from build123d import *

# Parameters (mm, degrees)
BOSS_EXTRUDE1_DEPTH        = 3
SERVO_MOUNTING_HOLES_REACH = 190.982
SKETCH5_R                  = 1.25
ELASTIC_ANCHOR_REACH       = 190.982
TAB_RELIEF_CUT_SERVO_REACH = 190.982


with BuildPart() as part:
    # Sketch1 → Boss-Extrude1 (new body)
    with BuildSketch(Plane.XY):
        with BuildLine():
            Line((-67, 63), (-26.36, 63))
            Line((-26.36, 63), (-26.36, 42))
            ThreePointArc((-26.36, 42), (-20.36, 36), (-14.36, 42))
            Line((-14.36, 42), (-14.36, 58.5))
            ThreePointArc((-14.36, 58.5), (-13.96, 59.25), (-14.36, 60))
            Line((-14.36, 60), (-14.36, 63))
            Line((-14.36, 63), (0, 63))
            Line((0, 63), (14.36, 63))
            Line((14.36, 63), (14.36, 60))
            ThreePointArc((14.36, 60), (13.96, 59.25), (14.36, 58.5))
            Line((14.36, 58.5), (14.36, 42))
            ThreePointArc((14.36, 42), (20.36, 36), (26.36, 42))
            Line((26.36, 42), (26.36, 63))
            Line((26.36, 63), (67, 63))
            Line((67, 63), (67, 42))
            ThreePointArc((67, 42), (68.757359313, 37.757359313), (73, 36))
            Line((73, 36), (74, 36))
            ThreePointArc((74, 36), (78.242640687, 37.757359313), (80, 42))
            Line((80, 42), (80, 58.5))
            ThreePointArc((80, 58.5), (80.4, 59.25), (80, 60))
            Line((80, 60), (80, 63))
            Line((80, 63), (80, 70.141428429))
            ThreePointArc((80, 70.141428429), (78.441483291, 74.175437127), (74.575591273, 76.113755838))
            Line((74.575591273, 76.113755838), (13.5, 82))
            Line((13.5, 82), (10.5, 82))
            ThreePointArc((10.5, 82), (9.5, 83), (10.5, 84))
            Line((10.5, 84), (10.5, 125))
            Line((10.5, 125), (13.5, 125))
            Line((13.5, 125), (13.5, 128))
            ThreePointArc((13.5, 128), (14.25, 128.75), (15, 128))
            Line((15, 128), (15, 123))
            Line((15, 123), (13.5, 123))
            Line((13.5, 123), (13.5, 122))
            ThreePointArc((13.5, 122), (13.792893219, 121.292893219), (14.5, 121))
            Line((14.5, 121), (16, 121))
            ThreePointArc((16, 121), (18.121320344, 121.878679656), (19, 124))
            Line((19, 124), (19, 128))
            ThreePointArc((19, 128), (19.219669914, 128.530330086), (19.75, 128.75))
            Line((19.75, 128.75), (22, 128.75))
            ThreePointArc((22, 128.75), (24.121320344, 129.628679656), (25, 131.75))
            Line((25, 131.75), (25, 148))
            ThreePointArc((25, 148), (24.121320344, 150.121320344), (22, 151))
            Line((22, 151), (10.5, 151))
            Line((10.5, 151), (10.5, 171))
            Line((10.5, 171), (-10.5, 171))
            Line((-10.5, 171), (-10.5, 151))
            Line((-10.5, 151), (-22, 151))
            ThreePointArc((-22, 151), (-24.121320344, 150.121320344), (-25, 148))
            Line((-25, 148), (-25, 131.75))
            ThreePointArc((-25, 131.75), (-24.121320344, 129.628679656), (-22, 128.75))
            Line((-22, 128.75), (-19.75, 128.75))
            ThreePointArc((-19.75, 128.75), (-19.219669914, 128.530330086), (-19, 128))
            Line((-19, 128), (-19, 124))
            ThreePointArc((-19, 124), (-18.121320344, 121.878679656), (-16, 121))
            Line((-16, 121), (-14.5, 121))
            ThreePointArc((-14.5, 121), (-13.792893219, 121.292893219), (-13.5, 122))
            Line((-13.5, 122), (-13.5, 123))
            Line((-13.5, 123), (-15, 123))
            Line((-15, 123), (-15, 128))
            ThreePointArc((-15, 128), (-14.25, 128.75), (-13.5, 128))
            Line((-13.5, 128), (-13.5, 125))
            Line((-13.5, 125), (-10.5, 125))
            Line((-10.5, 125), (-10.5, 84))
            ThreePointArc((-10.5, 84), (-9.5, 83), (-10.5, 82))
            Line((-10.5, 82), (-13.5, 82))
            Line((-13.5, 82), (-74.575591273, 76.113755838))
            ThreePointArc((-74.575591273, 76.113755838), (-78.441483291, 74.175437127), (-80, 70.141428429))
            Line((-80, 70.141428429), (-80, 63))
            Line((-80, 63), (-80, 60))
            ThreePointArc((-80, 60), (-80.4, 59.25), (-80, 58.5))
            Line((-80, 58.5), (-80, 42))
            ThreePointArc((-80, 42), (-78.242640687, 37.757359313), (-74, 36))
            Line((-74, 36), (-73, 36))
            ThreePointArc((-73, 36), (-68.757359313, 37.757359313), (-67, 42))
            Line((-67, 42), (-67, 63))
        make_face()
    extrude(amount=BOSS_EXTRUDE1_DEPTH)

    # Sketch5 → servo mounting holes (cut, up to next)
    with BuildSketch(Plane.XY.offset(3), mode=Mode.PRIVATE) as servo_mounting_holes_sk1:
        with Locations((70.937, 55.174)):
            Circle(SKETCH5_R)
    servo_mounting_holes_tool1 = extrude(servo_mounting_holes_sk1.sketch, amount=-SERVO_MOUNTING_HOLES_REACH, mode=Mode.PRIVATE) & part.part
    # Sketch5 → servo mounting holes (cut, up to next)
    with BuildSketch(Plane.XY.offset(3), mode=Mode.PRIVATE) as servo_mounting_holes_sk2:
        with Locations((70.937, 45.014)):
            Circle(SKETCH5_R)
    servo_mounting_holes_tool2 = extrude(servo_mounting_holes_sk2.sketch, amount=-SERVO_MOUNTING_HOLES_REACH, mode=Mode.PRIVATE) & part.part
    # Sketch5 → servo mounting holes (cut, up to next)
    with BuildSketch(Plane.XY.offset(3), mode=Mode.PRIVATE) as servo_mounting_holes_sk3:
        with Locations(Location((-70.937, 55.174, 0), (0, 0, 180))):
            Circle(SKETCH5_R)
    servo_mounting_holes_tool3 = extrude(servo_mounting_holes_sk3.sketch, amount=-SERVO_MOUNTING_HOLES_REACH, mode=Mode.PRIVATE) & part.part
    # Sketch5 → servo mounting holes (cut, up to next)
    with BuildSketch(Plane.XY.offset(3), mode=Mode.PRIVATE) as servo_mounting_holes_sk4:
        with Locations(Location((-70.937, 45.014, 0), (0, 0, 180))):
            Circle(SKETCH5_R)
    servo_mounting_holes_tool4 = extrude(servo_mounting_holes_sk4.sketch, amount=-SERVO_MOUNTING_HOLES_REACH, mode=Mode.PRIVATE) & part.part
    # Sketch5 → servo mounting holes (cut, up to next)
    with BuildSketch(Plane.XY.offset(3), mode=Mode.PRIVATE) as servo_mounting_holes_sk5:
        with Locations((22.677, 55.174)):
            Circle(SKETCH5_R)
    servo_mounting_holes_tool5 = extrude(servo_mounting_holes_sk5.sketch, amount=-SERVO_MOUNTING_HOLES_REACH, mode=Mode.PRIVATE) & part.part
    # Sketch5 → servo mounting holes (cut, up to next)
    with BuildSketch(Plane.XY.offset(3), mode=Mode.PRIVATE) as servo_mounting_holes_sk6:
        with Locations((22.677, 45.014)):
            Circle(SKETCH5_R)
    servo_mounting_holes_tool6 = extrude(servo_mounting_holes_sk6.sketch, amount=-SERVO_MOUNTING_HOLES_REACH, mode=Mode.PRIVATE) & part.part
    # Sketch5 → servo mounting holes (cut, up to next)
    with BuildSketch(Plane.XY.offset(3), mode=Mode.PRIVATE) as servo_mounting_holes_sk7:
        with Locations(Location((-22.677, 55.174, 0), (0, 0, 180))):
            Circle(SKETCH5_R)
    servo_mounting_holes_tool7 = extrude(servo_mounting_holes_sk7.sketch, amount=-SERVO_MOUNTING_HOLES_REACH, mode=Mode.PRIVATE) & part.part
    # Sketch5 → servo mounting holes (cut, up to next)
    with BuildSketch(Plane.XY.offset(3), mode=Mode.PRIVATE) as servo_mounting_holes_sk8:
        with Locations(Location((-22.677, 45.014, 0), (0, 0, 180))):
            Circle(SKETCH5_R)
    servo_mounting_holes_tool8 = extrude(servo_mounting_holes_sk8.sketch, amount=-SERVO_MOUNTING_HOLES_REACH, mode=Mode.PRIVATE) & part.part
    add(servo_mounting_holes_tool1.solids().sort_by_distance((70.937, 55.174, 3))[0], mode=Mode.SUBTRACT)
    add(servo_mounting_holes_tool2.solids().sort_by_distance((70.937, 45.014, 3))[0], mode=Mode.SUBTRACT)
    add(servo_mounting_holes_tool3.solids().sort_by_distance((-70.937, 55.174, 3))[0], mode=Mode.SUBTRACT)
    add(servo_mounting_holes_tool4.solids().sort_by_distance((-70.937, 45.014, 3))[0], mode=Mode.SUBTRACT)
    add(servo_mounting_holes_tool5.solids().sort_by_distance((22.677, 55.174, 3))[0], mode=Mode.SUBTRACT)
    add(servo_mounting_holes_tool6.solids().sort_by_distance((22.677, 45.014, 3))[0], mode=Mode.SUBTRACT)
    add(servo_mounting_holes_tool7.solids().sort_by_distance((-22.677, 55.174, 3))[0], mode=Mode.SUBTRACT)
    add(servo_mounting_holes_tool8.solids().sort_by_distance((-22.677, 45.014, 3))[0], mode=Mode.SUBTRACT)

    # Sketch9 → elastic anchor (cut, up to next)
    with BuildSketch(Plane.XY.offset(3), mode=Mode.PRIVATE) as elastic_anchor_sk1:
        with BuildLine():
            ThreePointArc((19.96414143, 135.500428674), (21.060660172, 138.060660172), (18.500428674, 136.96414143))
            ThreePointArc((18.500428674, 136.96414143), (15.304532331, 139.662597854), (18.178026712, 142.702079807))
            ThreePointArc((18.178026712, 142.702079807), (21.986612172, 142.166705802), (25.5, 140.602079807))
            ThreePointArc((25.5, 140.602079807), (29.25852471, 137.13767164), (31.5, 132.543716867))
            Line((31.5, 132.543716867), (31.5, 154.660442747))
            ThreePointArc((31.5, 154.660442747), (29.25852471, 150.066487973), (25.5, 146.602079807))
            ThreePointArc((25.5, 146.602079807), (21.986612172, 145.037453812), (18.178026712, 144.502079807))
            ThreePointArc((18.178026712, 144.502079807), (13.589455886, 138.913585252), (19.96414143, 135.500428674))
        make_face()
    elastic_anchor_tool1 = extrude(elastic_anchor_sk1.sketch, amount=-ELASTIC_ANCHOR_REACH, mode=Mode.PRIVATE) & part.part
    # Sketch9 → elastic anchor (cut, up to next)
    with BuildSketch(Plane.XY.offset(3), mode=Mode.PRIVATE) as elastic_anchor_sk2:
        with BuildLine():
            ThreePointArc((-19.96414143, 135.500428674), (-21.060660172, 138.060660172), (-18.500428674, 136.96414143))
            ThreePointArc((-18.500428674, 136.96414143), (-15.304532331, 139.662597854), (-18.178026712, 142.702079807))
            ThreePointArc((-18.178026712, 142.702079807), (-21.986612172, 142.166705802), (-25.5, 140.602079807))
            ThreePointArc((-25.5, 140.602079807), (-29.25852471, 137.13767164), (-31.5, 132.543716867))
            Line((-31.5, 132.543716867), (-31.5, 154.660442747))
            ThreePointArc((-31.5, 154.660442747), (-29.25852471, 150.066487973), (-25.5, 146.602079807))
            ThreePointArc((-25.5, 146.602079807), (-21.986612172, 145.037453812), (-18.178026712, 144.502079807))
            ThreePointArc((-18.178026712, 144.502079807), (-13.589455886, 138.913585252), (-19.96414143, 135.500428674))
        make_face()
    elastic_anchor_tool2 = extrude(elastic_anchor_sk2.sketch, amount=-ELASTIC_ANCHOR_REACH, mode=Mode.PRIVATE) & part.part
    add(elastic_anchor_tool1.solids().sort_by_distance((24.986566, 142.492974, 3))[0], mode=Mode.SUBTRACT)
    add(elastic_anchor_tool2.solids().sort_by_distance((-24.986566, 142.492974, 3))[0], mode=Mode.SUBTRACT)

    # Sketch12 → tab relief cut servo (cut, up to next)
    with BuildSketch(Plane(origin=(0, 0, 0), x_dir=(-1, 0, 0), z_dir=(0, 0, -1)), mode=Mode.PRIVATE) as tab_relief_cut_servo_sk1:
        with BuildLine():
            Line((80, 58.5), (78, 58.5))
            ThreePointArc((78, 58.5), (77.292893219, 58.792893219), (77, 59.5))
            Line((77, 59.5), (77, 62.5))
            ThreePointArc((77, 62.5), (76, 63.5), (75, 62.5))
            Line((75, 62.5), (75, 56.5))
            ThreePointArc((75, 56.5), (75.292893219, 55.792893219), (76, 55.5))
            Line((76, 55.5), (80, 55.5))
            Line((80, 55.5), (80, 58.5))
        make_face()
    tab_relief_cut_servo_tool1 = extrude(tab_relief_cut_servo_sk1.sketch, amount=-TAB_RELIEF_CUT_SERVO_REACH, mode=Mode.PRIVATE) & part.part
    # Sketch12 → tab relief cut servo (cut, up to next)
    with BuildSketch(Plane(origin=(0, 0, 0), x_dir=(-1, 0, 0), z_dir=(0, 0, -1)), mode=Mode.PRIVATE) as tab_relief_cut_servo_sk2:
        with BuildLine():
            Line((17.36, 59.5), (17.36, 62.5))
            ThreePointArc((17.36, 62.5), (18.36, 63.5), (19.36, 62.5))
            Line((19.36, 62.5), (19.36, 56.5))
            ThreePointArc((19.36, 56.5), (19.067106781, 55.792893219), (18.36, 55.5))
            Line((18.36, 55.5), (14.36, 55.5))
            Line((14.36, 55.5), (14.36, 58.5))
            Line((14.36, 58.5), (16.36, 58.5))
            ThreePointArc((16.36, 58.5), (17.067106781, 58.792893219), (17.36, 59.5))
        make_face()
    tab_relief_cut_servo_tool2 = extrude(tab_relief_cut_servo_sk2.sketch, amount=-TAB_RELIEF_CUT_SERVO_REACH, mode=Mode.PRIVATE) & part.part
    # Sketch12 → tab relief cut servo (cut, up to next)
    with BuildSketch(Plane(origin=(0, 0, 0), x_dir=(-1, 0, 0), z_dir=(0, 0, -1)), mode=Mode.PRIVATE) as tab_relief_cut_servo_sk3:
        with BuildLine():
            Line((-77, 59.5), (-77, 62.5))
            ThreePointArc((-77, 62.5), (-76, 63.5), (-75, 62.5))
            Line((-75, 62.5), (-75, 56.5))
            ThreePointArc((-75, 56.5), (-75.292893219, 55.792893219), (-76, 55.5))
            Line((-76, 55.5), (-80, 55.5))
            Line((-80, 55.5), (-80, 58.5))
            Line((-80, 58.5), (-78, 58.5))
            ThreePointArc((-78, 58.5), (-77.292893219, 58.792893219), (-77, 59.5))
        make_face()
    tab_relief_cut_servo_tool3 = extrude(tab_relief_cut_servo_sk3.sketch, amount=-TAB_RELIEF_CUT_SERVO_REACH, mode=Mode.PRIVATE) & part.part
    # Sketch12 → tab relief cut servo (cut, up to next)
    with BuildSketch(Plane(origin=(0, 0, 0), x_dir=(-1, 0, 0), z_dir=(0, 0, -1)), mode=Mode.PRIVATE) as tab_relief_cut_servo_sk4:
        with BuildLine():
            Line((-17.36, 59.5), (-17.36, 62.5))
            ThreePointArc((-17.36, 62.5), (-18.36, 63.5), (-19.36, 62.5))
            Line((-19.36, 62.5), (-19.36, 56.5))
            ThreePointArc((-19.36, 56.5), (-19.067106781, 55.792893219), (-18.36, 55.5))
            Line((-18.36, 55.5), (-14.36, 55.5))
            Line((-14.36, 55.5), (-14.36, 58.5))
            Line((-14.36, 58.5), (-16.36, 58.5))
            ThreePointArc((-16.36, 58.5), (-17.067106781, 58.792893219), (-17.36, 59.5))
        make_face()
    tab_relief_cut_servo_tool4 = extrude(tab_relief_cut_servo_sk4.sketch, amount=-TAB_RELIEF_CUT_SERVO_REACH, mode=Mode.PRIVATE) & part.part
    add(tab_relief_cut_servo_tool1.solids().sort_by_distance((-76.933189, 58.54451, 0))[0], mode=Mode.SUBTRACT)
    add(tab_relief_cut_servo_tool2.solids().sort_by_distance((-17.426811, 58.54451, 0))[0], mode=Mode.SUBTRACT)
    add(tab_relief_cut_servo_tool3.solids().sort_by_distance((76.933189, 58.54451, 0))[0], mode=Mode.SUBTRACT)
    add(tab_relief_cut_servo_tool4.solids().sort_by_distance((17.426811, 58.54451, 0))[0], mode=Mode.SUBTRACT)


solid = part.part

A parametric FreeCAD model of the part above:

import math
import FreeCAD as App
import Part
import Sketcher

V = App.Vector

doc = App.newDocument("Part")
body = doc.addObject("PartDesign::Body", "Body")

sketch1 = body.newObject("Sketcher::SketchObject", "Sketch")
sketch1.AttachmentSupport = (doc.getObject("XY_Plane"), [""])
sketch1.MapMode = "FlatFace"
sketch1.addGeometry(Part.LineSegment(V(-67, 63, 0), V(-26.4, 63, 0)), False)
sketch1.addGeometry(Part.LineSegment(V(-26.4, 63, 0), V(-26.4, 42, 0)), False)
sketch1.addGeometry(Part.ArcOfCircle(Part.Circle(V(-20.4, 42, 0), V(0, 0, 1), 6), math.radians(180), math.radians(360)), False)
sketch1.addGeometry(Part.LineSegment(V(-14.4, 42, 0), V(-14.4, 58.5, 0)), False)
sketch1.addGeometry(Part.ArcOfCircle(Part.Circle(V(-14.9, 59.2, 0), V(0, 0, 1), 0.9), math.radians(-56), math.radians(56)), False)
sketch1.addGeometry(Part.LineSegment(V(-14.4, 60, 0), V(-14.4, 63, 0)), False)
sketch1.addGeometry(Part.LineSegment(V(-14.4, 63, 0), V(14.4, 63, 0)), False)
sketch1.addGeometry(Part.LineSegment(V(14.4, 63, 0), V(14.4, 60, 0)), False)
sketch1.addGeometry(Part.ArcOfCircle(Part.Circle(V(14.9, 59.2, 0), V(0, 0, 1), 0.9), math.radians(124), math.radians(236)), False)
sketch1.addGeometry(Part.LineSegment(V(14.4, 58.5, 0), V(14.4, 42, 0)), False)
sketch1.addGeometry(Part.ArcOfCircle(Part.Circle(V(20.4, 42, 0), V(0, 0, 1), 6), math.radians(180), math.radians(360)), False)
sketch1.addGeometry(Part.LineSegment(V(26.4, 42, 0), V(26.4, 63, 0)), False)
sketch1.addGeometry(Part.LineSegment(V(26.4, 63, 0), V(67, 63, 0)), False)
sketch1.addGeometry(Part.LineSegment(V(67, 63, 0), V(67, 42, 0)), False)
sketch1.addGeometry(Part.ArcOfCircle(Part.Circle(V(73, 42, 0), V(0, 0, 1), 6), math.radians(180), math.radians(270)), False)
sketch1.addGeometry(Part.LineSegment(V(73, 36, 0), V(74, 36, 0)), False)
sketch1.addGeometry(Part.ArcOfCircle(Part.Circle(V(74, 42, 0), V(0, 0, 1), 6), math.radians(-90), math.radians(0)), False)
sketch1.addGeometry(Part.LineSegment(V(80, 42, 0), V(80, 58.5, 0)), False)
sketch1.addGeometry(Part.ArcOfCircle(Part.Circle(V(79.5, 59.2, 0), V(0, 0, 1), 0.9), math.radians(-56), math.radians(56)), False)
sketch1.addGeometry(Part.LineSegment(V(80, 60, 0), V(80, 70.1, 0)), False)
sketch1.addGeometry(Part.ArcOfCircle(Part.Circle(V(74, 70.1, 0), V(0, 0, 1), 6), math.radians(0), math.radians(84)), False)
sketch1.addGeometry(Part.LineSegment(V(74.6, 76.1, 0), V(13.5, 82, 0)), False)
sketch1.addGeometry(Part.LineSegment(V(13.5, 82, 0), V(10.5, 82, 0)), False)
sketch1.addGeometry(Part.ArcOfCircle(Part.Circle(V(10.5, 83, 0), V(0, 0, 1), 1), math.radians(90), math.radians(270)), False)
sketch1.addGeometry(Part.LineSegment(V(10.5, 84, 0), V(10.5, 125, 0)), False)
sketch1.addGeometry(Part.LineSegment(V(10.5, 125, 0), V(13.5, 125, 0)), False)
sketch1.addGeometry(Part.LineSegment(V(13.5, 125, 0), V(13.5, 128, 0)), False)
sketch1.addGeometry(Part.ArcOfCircle(Part.Circle(V(14.2, 128, 0), V(0, 0, 1), 0.8), math.radians(0), math.radians(180)), False)
sketch1.addGeometry(Part.LineSegment(V(15, 128, 0), V(15, 123, 0)), False)
sketch1.addGeometry(Part.LineSegment(V(15, 123, 0), V(13.5, 123, 0)), False)
sketch1.addGeometry(Part.LineSegment(V(13.5, 123, 0), V(13.5, 122, 0)), False)
sketch1.addGeometry(Part.ArcOfCircle(Part.Circle(V(14.5, 122, 0), V(0, 0, 1), 1), math.radians(-180), math.radians(-90)), False)
sketch1.addGeometry(Part.LineSegment(V(14.5, 121, 0), V(16, 121, 0)), False)
sketch1.addGeometry(Part.ArcOfCircle(Part.Circle(V(16, 124, 0), V(0, 0, 1), 3), math.radians(-90), math.radians(0)), False)
sketch1.addGeometry(Part.LineSegment(V(19, 124, 0), V(19, 128, 0)), False)
sketch1.addGeometry(Part.ArcOfCircle(Part.Circle(V(19.8, 128, 0), V(0, 0, 1), 0.8), math.radians(90), math.radians(180)), False)
sketch1.addGeometry(Part.LineSegment(V(19.8, 128.8, 0), V(22, 128.8, 0)), False)
sketch1.addGeometry(Part.ArcOfCircle(Part.Circle(V(22, 131.7, 0), V(0, 0, 1), 3), math.radians(-90), math.radians(0)), False)
sketch1.addGeometry(Part.LineSegment(V(25, 131.8, 0), V(25, 148, 0)), False)
sketch1.addGeometry(Part.ArcOfCircle(Part.Circle(V(22, 148, 0), V(0, 0, 1), 3), math.radians(0), math.radians(90)), False)
sketch1.addGeometry(Part.LineSegment(V(22, 151, 0), V(10.5, 151, 0)), False)
sketch1.addGeometry(Part.LineSegment(V(10.5, 151, 0), V(10.5, 171, 0)), False)
sketch1.addGeometry(Part.LineSegment(V(10.5, 171, 0), V(-10.5, 171, 0)), False)
sketch1.addGeometry(Part.LineSegment(V(-10.5, 171, 0), V(-10.5, 151, 0)), False)
sketch1.addGeometry(Part.LineSegment(V(-10.5, 151, 0), V(-22, 151, 0)), False)
sketch1.addGeometry(Part.ArcOfCircle(Part.Circle(V(-22, 148, 0), V(0, 0, 1), 3), math.radians(90), math.radians(180)), False)
sketch1.addGeometry(Part.LineSegment(V(-25, 148, 0), V(-25, 131.8, 0)), False)
sketch1.addGeometry(Part.ArcOfCircle(Part.Circle(V(-22, 131.7, 0), V(0, 0, 1), 3), math.radians(180), math.radians(270)), False)
sketch1.addGeometry(Part.LineSegment(V(-22, 128.8, 0), V(-19.8, 128.8, 0)), False)
sketch1.addGeometry(Part.ArcOfCircle(Part.Circle(V(-19.8, 128, 0), V(0, 0, 1), 0.8), math.radians(0), math.radians(90)), False)
sketch1.addGeometry(Part.LineSegment(V(-19, 128, 0), V(-19, 124, 0)), False)
sketch1.addGeometry(Part.ArcOfCircle(Part.Circle(V(-16, 124, 0), V(0, 0, 1), 3), math.radians(180), math.radians(270)), False)
sketch1.addGeometry(Part.LineSegment(V(-16, 121, 0), V(-14.5, 121, 0)), False)
sketch1.addGeometry(Part.ArcOfCircle(Part.Circle(V(-14.5, 122, 0), V(0, 0, 1), 1), math.radians(-90), math.radians(0)), False)
sketch1.addGeometry(Part.LineSegment(V(-13.5, 122, 0), V(-13.5, 123, 0)), False)
sketch1.addGeometry(Part.LineSegment(V(-13.5, 123, 0), V(-15, 123, 0)), False)
sketch1.addGeometry(Part.LineSegment(V(-15, 123, 0), V(-15, 128, 0)), False)
sketch1.addGeometry(Part.ArcOfCircle(Part.Circle(V(-14.2, 128, 0), V(0, 0, 1), 0.8), math.radians(0), math.radians(180)), False)
sketch1.addGeometry(Part.LineSegment(V(-13.5, 128, 0), V(-13.5, 125, 0)), False)
sketch1.addGeometry(Part.LineSegment(V(-13.5, 125, 0), V(-10.5, 125, 0)), False)
sketch1.addGeometry(Part.LineSegment(V(-10.5, 125, 0), V(-10.5, 84, 0)), False)
sketch1.addGeometry(Part.ArcOfCircle(Part.Circle(V(-10.5, 83, 0), V(0, 0, 1), 1), math.radians(-90), math.radians(90)), False)
sketch1.addGeometry(Part.LineSegment(V(-10.5, 82, 0), V(-13.5, 82, 0)), False)
sketch1.addGeometry(Part.LineSegment(V(-13.5, 82, 0), V(-74.6, 76.1, 0)), False)
sketch1.addGeometry(Part.ArcOfCircle(Part.Circle(V(-74, 70.1, 0), V(0, 0, 1), 6), math.radians(96), math.radians(180)), False)
sketch1.addGeometry(Part.LineSegment(V(-80, 70.1, 0), V(-80, 60, 0)), False)
sketch1.addGeometry(Part.ArcOfCircle(Part.Circle(V(-79.5, 59.2, 0), V(0, 0, 1), 0.9), math.radians(124), math.radians(236)), False)
sketch1.addGeometry(Part.LineSegment(V(-80, 58.5, 0), V(-80, 42, 0)), False)
sketch1.addGeometry(Part.ArcOfCircle(Part.Circle(V(-74, 42, 0), V(0, 0, 1), 6), math.radians(180), math.radians(270)), False)
sketch1.addGeometry(Part.LineSegment(V(-74, 36, 0), V(-73, 36, 0)), False)
sketch1.addGeometry(Part.ArcOfCircle(Part.Circle(V(-73, 42, 0), V(0, 0, 1), 6), math.radians(-90), math.radians(0)), False)
sketch1.addGeometry(Part.LineSegment(V(-67, 42, 0), V(-67, 63, 0)), False)
sketch1.addConstraint(Sketcher.Constraint("Coincident", 0, 2, 1, 1))
sketch1.addConstraint(Sketcher.Constraint("Tangent", 1, 2, 2, 1))
sketch1.addConstraint(Sketcher.Constraint("Tangent", 2, 2, 3, 1))
sketch1.addConstraint(Sketcher.Constraint("Coincident", 3, 2, 4, 1))
sketch1.addConstraint(Sketcher.Constraint("Coincident", 4, 2, 5, 1))
sketch1.addConstraint(Sketcher.Constraint("Coincident", 5, 2, 6, 1))
sketch1.addConstraint(Sketcher.Constraint("Coincident", 6, 2, 7, 1))
sketch1.addConstraint(Sketcher.Constraint("Coincident", 7, 2, 8, 1))
sketch1.addConstraint(Sketcher.Constraint("Coincident", 8, 2, 9, 1))
sketch1.addConstraint(Sketcher.Constraint("Tangent", 9, 2, 10, 1))
sketch1.addConstraint(Sketcher.Constraint("Tangent", 10, 2, 11, 1))
sketch1.addConstraint(Sketcher.Constraint("Coincident", 11, 2, 12, 1))
sketch1.addConstraint(Sketcher.Constraint("Coincident", 12, 2, 13, 1))
sketch1.addConstraint(Sketcher.Constraint("Tangent", 13, 2, 14, 1))
sketch1.addConstraint(Sketcher.Constraint("Tangent", 14, 2, 15, 1))
sketch1.addConstraint(Sketcher.Constraint("Tangent", 15, 2, 16, 1))
sketch1.addConstraint(Sketcher.Constraint("Tangent", 16, 2, 17, 1))
sketch1.addConstraint(Sketcher.Constraint("Coincident", 17, 2, 18, 1))
sketch1.addConstraint(Sketcher.Constraint("Coincident", 18, 2, 19, 1))
sketch1.addConstraint(Sketcher.Constraint("Tangent", 19, 2, 20, 1))
sketch1.addConstraint(Sketcher.Constraint("Tangent", 20, 2, 21, 1))
sketch1.addConstraint(Sketcher.Constraint("Coincident", 21, 2, 22, 1))
sketch1.addConstraint(Sketcher.Constraint("Tangent", 22, 2, 23, 2))
sketch1.addConstraint(Sketcher.Constraint("Coincident", 23, 1, 24, 1))
sketch1.addConstraint(Sketcher.Constraint("Coincident", 24, 2, 25, 1))
sketch1.addConstraint(Sketcher.Constraint("Coincident", 25, 2, 26, 1))
sketch1.addConstraint(Sketcher.Constraint("Tangent", 26, 2, 27, 2))
sketch1.addConstraint(Sketcher.Constraint("Tangent", 27, 1, 28, 1))
sketch1.addConstraint(Sketcher.Constraint("Coincident", 28, 2, 29, 1))
sketch1.addConstraint(Sketcher.Constraint("Coincident", 29, 2, 30, 1))
sketch1.addConstraint(Sketcher.Constraint("Tangent", 30, 2, 31, 1))
sketch1.addConstraint(Sketcher.Constraint("Tangent", 31, 2, 32, 1))
sketch1.addConstraint(Sketcher.Constraint("Tangent", 32, 2, 33, 1))
sketch1.addConstraint(Sketcher.Constraint("Tangent", 33, 2, 34, 1))
sketch1.addConstraint(Sketcher.Constraint("Tangent", 34, 2, 35, 2))
sketch1.addConstraint(Sketcher.Constraint("Tangent", 35, 1, 36, 1))
sketch1.addConstraint(Sketcher.Constraint("Tangent", 36, 2, 37, 1))
sketch1.addConstraint(Sketcher.Constraint("Tangent", 37, 2, 38, 1))
sketch1.addConstraint(Sketcher.Constraint("Tangent", 38, 2, 39, 1))
sketch1.addConstraint(Sketcher.Constraint("Tangent", 39, 2, 40, 1))
sketch1.addConstraint(Sketcher.Constraint("Coincident", 40, 2, 41, 1))
sketch1.addConstraint(Sketcher.Constraint("Coincident", 41, 2, 42, 1))
sketch1.addConstraint(Sketcher.Constraint("Coincident", 42, 2, 43, 1))
sketch1.addConstraint(Sketcher.Constraint("Coincident", 43, 2, 44, 1))
sketch1.addConstraint(Sketcher.Constraint("Tangent", 44, 2, 45, 1))
sketch1.addConstraint(Sketcher.Constraint("Tangent", 45, 2, 46, 1))
sketch1.addConstraint(Sketcher.Constraint("Tangent", 46, 2, 47, 1))
sketch1.addConstraint(Sketcher.Constraint("Tangent", 47, 2, 48, 1))
sketch1.addConstraint(Sketcher.Constraint("Tangent", 48, 2, 49, 2))
sketch1.addConstraint(Sketcher.Constraint("Tangent", 49, 1, 50, 1))
sketch1.addConstraint(Sketcher.Constraint("Tangent", 50, 2, 51, 1))
sketch1.addConstraint(Sketcher.Constraint("Tangent", 51, 2, 52, 1))
sketch1.addConstraint(Sketcher.Constraint("Tangent", 52, 2, 53, 1))
sketch1.addConstraint(Sketcher.Constraint("Tangent", 53, 2, 54, 1))
sketch1.addConstraint(Sketcher.Constraint("Coincident", 54, 2, 55, 1))
sketch1.addConstraint(Sketcher.Constraint("Coincident", 55, 2, 56, 1))
sketch1.addConstraint(Sketcher.Constraint("Tangent", 56, 2, 57, 2))
sketch1.addConstraint(Sketcher.Constraint("Tangent", 57, 1, 58, 1))
sketch1.addConstraint(Sketcher.Constraint("Coincident", 58, 2, 59, 1))
sketch1.addConstraint(Sketcher.Constraint("Coincident", 59, 2, 60, 1))
sketch1.addConstraint(Sketcher.Constraint("Coincident", 60, 2, 61, 2))
sketch1.addConstraint(Sketcher.Constraint("Tangent", 61, 1, 62, 1))
sketch1.addConstraint(Sketcher.Constraint("Coincident", 62, 2, 63, 1))
sketch1.addConstraint(Sketcher.Constraint("Tangent", 63, 2, 64, 1))
sketch1.addConstraint(Sketcher.Constraint("Tangent", 64, 2, 65, 1))
sketch1.addConstraint(Sketcher.Constraint("Coincident", 65, 2, 66, 1))
sketch1.addConstraint(Sketcher.Constraint("Coincident", 66, 2, 67, 1))
sketch1.addConstraint(Sketcher.Constraint("Tangent", 67, 2, 68, 1))
sketch1.addConstraint(Sketcher.Constraint("Tangent", 68, 2, 69, 1))
sketch1.addConstraint(Sketcher.Constraint("Tangent", 69, 2, 70, 1))
sketch1.addConstraint(Sketcher.Constraint("Tangent", 70, 2, 71, 1))
sketch1.addConstraint(Sketcher.Constraint("Coincident", 71, 2, 0, 1))
sketch1.addConstraint(Sketcher.Constraint("Horizontal", 0))
sketch1.addConstraint(Sketcher.Constraint("Vertical", 1))
sketch1.addConstraint(Sketcher.Constraint("Vertical", 3))
sketch1.addConstraint(Sketcher.Constraint("Vertical", 5))
sketch1.addConstraint(Sketcher.Constraint("Horizontal", 6))
sketch1.addConstraint(Sketcher.Constraint("Vertical", 7))
sketch1.addConstraint(Sketcher.Constraint("Vertical", 9))
sketch1.addConstraint(Sketcher.Constraint("Vertical", 11))
sketch1.addConstraint(Sketcher.Constraint("Horizontal", 12))
sketch1.addConstraint(Sketcher.Constraint("Vertical", 13))
sketch1.addConstraint(Sketcher.Constraint("Horizontal", 15))
sketch1.addConstraint(Sketcher.Constraint("Vertical", 17))
sketch1.addConstraint(Sketcher.Constraint("Vertical", 19))
sketch1.addConstraint(Sketcher.Constraint("Horizontal", 22))
sketch1.addConstraint(Sketcher.Constraint("Vertical", 24))
sketch1.addConstraint(Sketcher.Constraint("Horizontal", 25))
sketch1.addConstraint(Sketcher.Constraint("Vertical", 26))
sketch1.addConstraint(Sketcher.Constraint("Vertical", 28))
sketch1.addConstraint(Sketcher.Constraint("Horizontal", 29))
sketch1.addConstraint(Sketcher.Constraint("Vertical", 30))
sketch1.addConstraint(Sketcher.Constraint("Horizontal", 32))
sketch1.addConstraint(Sketcher.Constraint("Vertical", 34))
sketch1.addConstraint(Sketcher.Constraint("Horizontal", 36))
sketch1.addConstraint(Sketcher.Constraint("Vertical", 38))
sketch1.addConstraint(Sketcher.Constraint("Horizontal", 40))
sketch1.addConstraint(Sketcher.Constraint("Vertical", 41))
sketch1.addConstraint(Sketcher.Constraint("Horizontal", 42))
sketch1.addConstraint(Sketcher.Constraint("Vertical", 43))
sketch1.addConstraint(Sketcher.Constraint("Horizontal", 44))
sketch1.addConstraint(Sketcher.Constraint("Vertical", 46))
sketch1.addConstraint(Sketcher.Constraint("Horizontal", 48))
sketch1.addConstraint(Sketcher.Constraint("Vertical", 50))
sketch1.addConstraint(Sketcher.Constraint("Horizontal", 52))
sketch1.addConstraint(Sketcher.Constraint("Vertical", 54))
sketch1.addConstraint(Sketcher.Constraint("Horizontal", 55))
sketch1.addConstraint(Sketcher.Constraint("Vertical", 56))
sketch1.addConstraint(Sketcher.Constraint("Vertical", 58))
sketch1.addConstraint(Sketcher.Constraint("Horizontal", 59))
sketch1.addConstraint(Sketcher.Constraint("Vertical", 60))
sketch1.addConstraint(Sketcher.Constraint("Horizontal", 62))
sketch1.addConstraint(Sketcher.Constraint("Vertical", 65))
sketch1.addConstraint(Sketcher.Constraint("Vertical", 67))
sketch1.addConstraint(Sketcher.Constraint("Horizontal", 69))
sketch1.addConstraint(Sketcher.Constraint("Vertical", 71))
sketch1.addConstraint(Sketcher.Constraint("Equal", 4, 8))
sketch1.addConstraint(Sketcher.Constraint("Equal", 2, 10))
sketch1.addConstraint(Sketcher.Constraint("Equal", 10, 14))
sketch1.addConstraint(Sketcher.Constraint("Equal", 14, 16))
sketch1.addConstraint(Sketcher.Constraint("Equal", 8, 18))
sketch1.addConstraint(Sketcher.Constraint("Equal", 16, 20))
sketch1.addConstraint(Sketcher.Constraint("Equal", 23, 31))
sketch1.addConstraint(Sketcher.Constraint("Equal", 27, 35))
sketch1.addConstraint(Sketcher.Constraint("Equal", 33, 37))
sketch1.addConstraint(Sketcher.Constraint("Equal", 37, 39))
sketch1.addConstraint(Sketcher.Constraint("Equal", 39, 45))
sketch1.addConstraint(Sketcher.Constraint("Equal", 45, 47))
sketch1.addConstraint(Sketcher.Constraint("Equal", 35, 49))
sketch1.addConstraint(Sketcher.Constraint("Equal", 47, 51))
sketch1.addConstraint(Sketcher.Constraint("Equal", 31, 53))
sketch1.addConstraint(Sketcher.Constraint("Equal", 49, 57))
sketch1.addConstraint(Sketcher.Constraint("Equal", 53, 61))
sketch1.addConstraint(Sketcher.Constraint("Equal", 20, 64))
sketch1.addConstraint(Sketcher.Constraint("Equal", 18, 66))
sketch1.addConstraint(Sketcher.Constraint("Equal", 64, 68))
sketch1.addConstraint(Sketcher.Constraint("Equal", 68, 70))
sketch1.addConstraint(Sketcher.Constraint("Symmetric", 4, 3, 8, 3, -2))
sketch1.addConstraint(Sketcher.Constraint("Symmetric", 2, 3, 10, 3, -2))
sketch1.addConstraint(Sketcher.Constraint("Symmetric", 39, 3, 45, 3, -2))
sketch1.addConstraint(Sketcher.Constraint("Symmetric", 35, 3, 49, 3, -2))
sketch1.addConstraint(Sketcher.Constraint("Symmetric", 31, 3, 53, 3, -2))
sketch1.addConstraint(Sketcher.Constraint("Symmetric", 27, 3, 57, 3, -2))
sketch1.addConstraint(Sketcher.Constraint("Symmetric", 23, 3, 61, 3, -2))
sketch1.addConstraint(Sketcher.Constraint("Symmetric", 20, 3, 64, 3, -2))
sketch1.addConstraint(Sketcher.Constraint("Symmetric", 18, 3, 66, 3, -2))
sketch1.addConstraint(Sketcher.Constraint("Symmetric", 16, 3, 68, 3, -2))
sketch1.addConstraint(Sketcher.Constraint("Symmetric", 24, 2, 59, 2, -2))
sketch1.addConstraint(Sketcher.Constraint("Symmetric", 12, 2, 71, 2, -2))
sketch1.addConstraint(Sketcher.Constraint("Horizontal", 10, 3, 14, 3))
sketch1.addConstraint(Sketcher.Constraint("Horizontal", 8, 3, 18, 3))
sketch1.addConstraint(Sketcher.Constraint("Horizontal", 27, 3, 35, 3))
sketch1.addConstraint(Sketcher.Constraint("Horizontal", 0, 2, 5, 2))
sketch1.addConstraint(Sketcher.Constraint("Horizontal", 4, 2, 7, 2))
sketch1.addConstraint(Sketcher.Constraint("Horizontal", 8, 2, 17, 2))
sketch1.addConstraint(Sketcher.Constraint("Horizontal", 7, 2, 18, 2))
sketch1.addConstraint(Sketcher.Constraint("Horizontal", 29, 2, 54, 2))
sketch1.addConstraint(Sketcher.Constraint("Vertical", 16, 3, 20, 3))
sketch1.addConstraint(Sketcher.Constraint("Vertical", 22, 2, 23, 1))
sketch1.addConstraint(Sketcher.Constraint("Vertical", 21, 2, 25, 2))
sketch1.addConstraint(Sketcher.Constraint("Vertical", 26, 2, 29, 2))
sketch1.addConstraint(Sketcher.Constraint("Vertical", 24, 2, 40, 2))
sketch1.addConstraint(Sketcher.Constraint("Vertical", 61, 3, 42, 2))
sketch1.addConstraint(Sketcher.Constraint("Vertical", 58, 2, 62, 2))
sketch1.addConstraint(Sketcher.Constraint("Equal", 29, 32))
sketch1.addConstraint(Sketcher.Constraint("Equal", 42, 1))
sketch1.addConstraint(Sketcher.Constraint("Equal", 62, 5))
sketch1.addConstraint(Sketcher.Constraint("Equal", 7, 26))
sketch1.addConstraint(Sketcher.Constraint("Equal", 69, 30))
sketch1.addConstraint(Sketcher.Constraint("Radius", 2, 6.0))
sketch1.addConstraint(Sketcher.Constraint("Radius", 23, 1.0))
sketch1.addConstraint(Sketcher.Constraint("Radius", 33, 3.0))
sketch1.addConstraint(Sketcher.Constraint("DistanceX", 15, 1, 15, 2, 1.0))
sketch1.addConstraint(Sketcher.Constraint("DistanceX", 22, 2, 22, 1, 3.0))
sketch1.addConstraint(Sketcher.Constraint("DistanceX", 42, 2, 42, 1, 21.0))
sketch1.addConstraint(Sketcher.Constraint("DistanceY", 24, 1, 24, 2, 41.0))
sketch1.addConstraint(Sketcher.Constraint("DistanceY", 28, 2, 28, 1, 5.0))
sketch1.addConstraint(Sketcher.Constraint("DistanceY", 41, 1, 41, 2, 20.0))
sketch1.addConstraint(Sketcher.Constraint("Radius", 27, 0.75))
sketch1.addConstraint(Sketcher.Constraint("DistanceX", 40, 2, 40, 1, 11.5))
sketch1.addConstraint(Sketcher.Constraint("DistanceY", 3, 1, 3, 2, 16.5))
sketch1.addConstraint(Sketcher.Constraint("DistanceY", -1, 1, 2, 3, 42.0))
sketch1.addConstraint(Sketcher.Constraint("DistanceX", -1, 1, 14, 3, 73.0))
sketch1.addConstraint(Sketcher.Constraint("DistanceY", -1, 1, 23, 3, 83.0))
sketch1.addConstraint(Sketcher.Constraint("DistanceY", -1, 1, 39, 3, 148.0))
sketch1.addConstraint(Sketcher.Constraint("DistanceX", 0, 1, 0, 2, 40.64))
sketch1.addConstraint(Sketcher.Constraint("Radius", 4, 0.903125))
sketch1.addConstraint(Sketcher.Constraint("DistanceY", 19, 1, 19, 2, 10.141428))
pad1 = body.newObject("PartDesign::Pad", "Pad")
pad1.Profile = sketch1
pad1.Length = 3

sketch2 = body.newObject("Sketcher::SketchObject", "Sketch001")
sketch2.AttachmentSupport = (doc.getObject("XY_Plane"), [""])
sketch2.MapMode = "FlatFace"
sketch2.AttachmentOffset = App.Placement(V(0, 0, 3), App.Rotation())
sketch2.addGeometry(Part.Circle(V(70.9, 55.2, 0), V(0, 0, 1), 1.2), False)
sketch2.addConstraint(Sketcher.Constraint("Diameter", 0, 2.5))
sketch2.addConstraint(Sketcher.Constraint("DistanceX", -1, 1, 0, 3, 70.937))
sketch2.addConstraint(Sketcher.Constraint("DistanceY", -1, 1, 0, 3, 55.174))
pocket1 = body.newObject("PartDesign::Pocket", "Pocket")
pocket1.Profile = sketch2
pocket1.Type = "UpToFirst"

sketch3 = body.newObject("Sketcher::SketchObject", "Sketch002")
sketch3.AttachmentSupport = (doc.getObject("XY_Plane"), [""])
sketch3.MapMode = "FlatFace"
sketch3.AttachmentOffset = App.Placement(V(0, 0, 3), App.Rotation())
sketch3.addGeometry(Part.Circle(V(70.9, 45, 0), V(0, 0, 1), 1.2), False)
sketch3.addConstraint(Sketcher.Constraint("Diameter", 0, 2.5))
sketch3.addConstraint(Sketcher.Constraint("DistanceX", -1, 1, 0, 3, 70.937))
sketch3.addConstraint(Sketcher.Constraint("DistanceY", -1, 1, 0, 3, 45.014))
pocket2 = body.newObject("PartDesign::Pocket", "Pocket001")
pocket2.Profile = sketch3
pocket2.Type = "UpToFirst"

sketch4 = body.newObject("Sketcher::SketchObject", "Sketch003")
sketch4.AttachmentSupport = (doc.getObject("XY_Plane"), [""])
sketch4.MapMode = "FlatFace"
sketch4.AttachmentOffset = App.Placement(V(0, 0, 3), App.Rotation())
sketch4.addGeometry(Part.Circle(V(-70.9, 55.2, 0), V(0, 0, 1), 1.2), False)
sketch4.addConstraint(Sketcher.Constraint("Diameter", 0, 2.5))
sketch4.addConstraint(Sketcher.Constraint("DistanceX", 0, 3, -1, 1, 70.937))
sketch4.addConstraint(Sketcher.Constraint("DistanceY", -1, 1, 0, 3, 55.174))
pocket3 = body.newObject("PartDesign::Pocket", "Pocket002")
pocket3.Profile = sketch4
pocket3.Type = "UpToFirst"

sketch5 = body.newObject("Sketcher::SketchObject", "Sketch004")
sketch5.AttachmentSupport = (doc.getObject("XY_Plane"), [""])
sketch5.MapMode = "FlatFace"
sketch5.AttachmentOffset = App.Placement(V(0, 0, 3), App.Rotation())
sketch5.addGeometry(Part.Circle(V(-70.9, 45, 0), V(0, 0, 1), 1.2), False)
sketch5.addConstraint(Sketcher.Constraint("Diameter", 0, 2.5))
sketch5.addConstraint(Sketcher.Constraint("DistanceX", 0, 3, -1, 1, 70.937))
sketch5.addConstraint(Sketcher.Constraint("DistanceY", -1, 1, 0, 3, 45.014))
pocket4 = body.newObject("PartDesign::Pocket", "Pocket003")
pocket4.Profile = sketch5
pocket4.Type = "UpToFirst"

sketch6 = body.newObject("Sketcher::SketchObject", "Sketch005")
sketch6.AttachmentSupport = (doc.getObject("XY_Plane"), [""])
sketch6.MapMode = "FlatFace"
sketch6.AttachmentOffset = App.Placement(V(0, 0, 3), App.Rotation())
sketch6.addGeometry(Part.Circle(V(22.7, 55.2, 0), V(0, 0, 1), 1.2), False)
sketch6.addConstraint(Sketcher.Constraint("Diameter", 0, 2.5))
sketch6.addConstraint(Sketcher.Constraint("DistanceX", -1, 1, 0, 3, 22.677))
sketch6.addConstraint(Sketcher.Constraint("DistanceY", -1, 1, 0, 3, 55.174))
pocket5 = body.newObject("PartDesign::Pocket", "Pocket004")
pocket5.Profile = sketch6
pocket5.Type = "UpToFirst"

sketch7 = body.newObject("Sketcher::SketchObject", "Sketch006")
sketch7.AttachmentSupport = (doc.getObject("XY_Plane"), [""])
sketch7.MapMode = "FlatFace"
sketch7.AttachmentOffset = App.Placement(V(0, 0, 3), App.Rotation())
sketch7.addGeometry(Part.Circle(V(22.7, 45, 0), V(0, 0, 1), 1.2), False)
sketch7.addConstraint(Sketcher.Constraint("Diameter", 0, 2.5))
sketch7.addConstraint(Sketcher.Constraint("DistanceX", -1, 1, 0, 3, 22.677))
sketch7.addConstraint(Sketcher.Constraint("DistanceY", -1, 1, 0, 3, 45.014))
pocket6 = body.newObject("PartDesign::Pocket", "Pocket005")
pocket6.Profile = sketch7
pocket6.Type = "UpToFirst"

sketch8 = body.newObject("Sketcher::SketchObject", "Sketch007")
sketch8.AttachmentSupport = (doc.getObject("XY_Plane"), [""])
sketch8.MapMode = "FlatFace"
sketch8.AttachmentOffset = App.Placement(V(0, 0, 3), App.Rotation())
sketch8.addGeometry(Part.Circle(V(-22.7, 55.2, 0), V(0, 0, 1), 1.2), False)
sketch8.addConstraint(Sketcher.Constraint("Diameter", 0, 2.5))
sketch8.addConstraint(Sketcher.Constraint("DistanceX", 0, 3, -1, 1, 22.677))
sketch8.addConstraint(Sketcher.Constraint("DistanceY", -1, 1, 0, 3, 55.174))
pocket7 = body.newObject("PartDesign::Pocket", "Pocket006")
pocket7.Profile = sketch8
pocket7.Type = "UpToFirst"

sketch9 = body.newObject("Sketcher::SketchObject", "Sketch008")
sketch9.AttachmentSupport = (doc.getObject("XY_Plane"), [""])
sketch9.MapMode = "FlatFace"
sketch9.AttachmentOffset = App.Placement(V(0, 0, 3), App.Rotation())
sketch9.addGeometry(Part.Circle(V(-22.7, 45, 0), V(0, 0, 1), 1.2), False)
sketch9.addConstraint(Sketcher.Constraint("Diameter", 0, 2.5))
sketch9.addConstraint(Sketcher.Constraint("DistanceX", 0, 3, -1, 1, 22.677))
sketch9.addConstraint(Sketcher.Constraint("DistanceY", -1, 1, 0, 3, 45.014))
pocket8 = body.newObject("PartDesign::Pocket", "Pocket007")
pocket8.Profile = sketch9
pocket8.Type = "UpToFirst"

sketch10 = body.newObject("Sketcher::SketchObject", "Sketch009")
sketch10.AttachmentSupport = (doc.getObject("XY_Plane"), [""])
sketch10.MapMode = "FlatFace"
sketch10.AttachmentOffset = App.Placement(V(0, 0, 3), App.Rotation())
sketch10.addGeometry(Part.ArcOfCircle(Part.Circle(V(20, 137, 0), V(0, 0, 1), 1.5), math.radians(-91), math.radians(181)), False)
sketch10.addGeometry(Part.ArcOfCircle(Part.Circle(V(18.2, 139.8, 0), V(0, 0, 1), 2.9), math.radians(90), math.radians(276)), False)
sketch10.addGeometry(Part.ArcOfCircle(Part.Circle(V(18.2, 128.9, 0), V(0, 0, 1), 13.8), math.radians(58), math.radians(90)), False)
sketch10.addGeometry(Part.ArcOfCircle(Part.Circle(V(18.2, 128.9, 0), V(0, 0, 1), 13.8), math.radians(15), math.radians(58)), False)
sketch10.addGeometry(Part.LineSegment(V(31.5, 132.5, 0), V(31.5, 154.7, 0)), False)
sketch10.addGeometry(Part.ArcOfCircle(Part.Circle(V(18.2, 158.3, 0), V(0, 0, 1), 13.8), math.radians(-58), math.radians(-15)), False)
sketch10.addGeometry(Part.ArcOfCircle(Part.Circle(V(18.2, 158.3, 0), V(0, 0, 1), 13.8), math.radians(-90), math.radians(-58)), False)
sketch10.addGeometry(Part.ArcOfCircle(Part.Circle(V(18.2, 139.8, 0), V(0, 0, 1), 4.7), math.radians(90), math.radians(292)), False)
sketch10.addConstraint(Sketcher.Constraint("Coincident", 0, 2, 1, 2))
sketch10.addConstraint(Sketcher.Constraint("Tangent", 1, 1, 2, 2))
sketch10.addConstraint(Sketcher.Constraint("Tangent", 2, 1, 3, 2))
sketch10.addConstraint(Sketcher.Constraint("Coincident", 3, 1, 4, 1))
sketch10.addConstraint(Sketcher.Constraint("Coincident", 4, 2, 5, 2))
sketch10.addConstraint(Sketcher.Constraint("Tangent", 5, 1, 6, 2))
sketch10.addConstraint(Sketcher.Constraint("Tangent", 6, 1, 7, 1))
sketch10.addConstraint(Sketcher.Constraint("Coincident", 7, 2, 0, 1))
sketch10.addConstraint(Sketcher.Constraint("Vertical", 4))
sketch10.addConstraint(Sketcher.Constraint("Coincident", 7, 3, 1, 3))
sketch10.addConstraint(Sketcher.Constraint("Equal", 2, 3))
sketch10.addConstraint(Sketcher.Constraint("Equal", 3, 5))
sketch10.addConstraint(Sketcher.Constraint("Equal", 5, 6))
sketch10.addConstraint(Sketcher.Constraint("Vertical", 1, 3, 2, 3))
sketch10.addConstraint(Sketcher.Constraint("Vertical", 3, 3, 5, 3))
sketch10.addConstraint(Sketcher.Constraint("Vertical", 2, 1, 5, 1))
sketch10.addConstraint(Sketcher.Constraint("Radius", 0, 1.5))
sketch10.addConstraint(Sketcher.Constraint("DistanceX", -1, 1, 0, 3, 20.0))
sketch10.addConstraint(Sketcher.Constraint("DistanceY", -1, 1, 0, 3, 137.0))
sketch10.addConstraint(Sketcher.Constraint("DistanceX", 2, 1, 3, 1, 6.0))
sketch10.addConstraint(Sketcher.Constraint("DistanceY", 2, 1, 5, 1, 6.0))
sketch10.addConstraint(Sketcher.Constraint("DistanceX", -1, 1, 2, 1, 25.5))
sketch10.addConstraint(Sketcher.Constraint("DistanceY", 2, 1, 1, 1, 2.1))
sketch10.addConstraint(Sketcher.Constraint("Radius", 1, 2.878027))
sketch10.addConstraint(Sketcher.Constraint("Radius", 2, 13.814594))
sketch10.addConstraint(Sketcher.Constraint("DistanceX", 1, 3, 0, 2, 0.322402))
pocket9 = body.newObject("PartDesign::Pocket", "Pocket008")
pocket9.Profile = sketch10
pocket9.Type = "UpToFirst"

sketch11 = body.newObject("Sketcher::SketchObject", "Sketch010")
sketch11.AttachmentSupport = (doc.getObject("XY_Plane"), [""])
sketch11.MapMode = "FlatFace"
sketch11.AttachmentOffset = App.Placement(V(0, 0, 3), App.Rotation())
sketch11.addGeometry(Part.ArcOfCircle(Part.Circle(V(-20, 137, 0), V(0, 0, 1), 1.5), math.radians(-1), math.radians(271)), False)
sketch11.addGeometry(Part.ArcOfCircle(Part.Circle(V(-18.2, 139.8, 0), V(0, 0, 1), 4.7), math.radians(-112), math.radians(90)), False)
sketch11.addGeometry(Part.ArcOfCircle(Part.Circle(V(-18.2, 158.3, 0), V(0, 0, 1), 13.8), math.radians(-122), math.radians(-90)), False)
sketch11.addGeometry(Part.ArcOfCircle(Part.Circle(V(-18.2, 158.3, 0), V(0, 0, 1), 13.8), math.radians(-165), math.radians(-122)), False)
sketch11.addGeometry(Part.LineSegment(V(-31.5, 154.7, 0), V(-31.5, 132.5, 0)), False)
sketch11.addGeometry(Part.ArcOfCircle(Part.Circle(V(-18.2, 128.9, 0), V(0, 0, 1), 13.8), math.radians(122), math.radians(165)), False)
sketch11.addGeometry(Part.ArcOfCircle(Part.Circle(V(-18.2, 128.9, 0), V(0, 0, 1), 13.8), math.radians(90), math.radians(122)), False)
sketch11.addGeometry(Part.ArcOfCircle(Part.Circle(V(-18.2, 139.8, 0), V(0, 0, 1), 2.9), math.radians(-96), math.radians(90)), False)
sketch11.addConstraint(Sketcher.Constraint("Coincident", 0, 2, 1, 1))
sketch11.addConstraint(Sketcher.Constraint("Tangent", 1, 2, 2, 2))
sketch11.addConstraint(Sketcher.Constraint("Tangent", 2, 1, 3, 2))
sketch11.addConstraint(Sketcher.Constraint("Coincident", 3, 1, 4, 1))
sketch11.addConstraint(Sketcher.Constraint("Coincident", 4, 2, 5, 2))
sketch11.addConstraint(Sketcher.Constraint("Tangent", 5, 1, 6, 2))
sketch11.addConstraint(Sketcher.Constraint("Tangent", 6, 1, 7, 2))
sketch11.addConstraint(Sketcher.Constraint("Coincident", 7, 1, 0, 1))
sketch11.addConstraint(Sketcher.Constraint("Vertical", 4))
sketch11.addConstraint(Sketcher.Constraint("Coincident", 7, 3, 1, 3))
sketch11.addConstraint(Sketcher.Constraint("Equal", 2, 3))
sketch11.addConstraint(Sketcher.Constraint("Equal", 3, 5))
sketch11.addConstraint(Sketcher.Constraint("Equal", 5, 6))
sketch11.addConstraint(Sketcher.Constraint("Vertical", 1, 3, 2, 3))
sketch11.addConstraint(Sketcher.Constraint("Vertical", 3, 3, 5, 3))
sketch11.addConstraint(Sketcher.Constraint("Vertical", 2, 1, 5, 1))
sketch11.addConstraint(Sketcher.Constraint("Radius", 0, 1.5))
sketch11.addConstraint(Sketcher.Constraint("DistanceX", 0, 3, -1, 1, 20.0))
sketch11.addConstraint(Sketcher.Constraint("DistanceY", -1, 1, 0, 3, 137.0))
sketch11.addConstraint(Sketcher.Constraint("DistanceX", 3, 1, 2, 1, 6.0))
sketch11.addConstraint(Sketcher.Constraint("DistanceY", 5, 1, 2, 1, 6.0))
sketch11.addConstraint(Sketcher.Constraint("DistanceX", 2, 1, -1, 1, 25.5))
sketch11.addConstraint(Sketcher.Constraint("DistanceY", 1, 2, 2, 1, 2.1))
sketch11.addConstraint(Sketcher.Constraint("Radius", 1, 4.678027))
sketch11.addConstraint(Sketcher.Constraint("Radius", 2, 13.814594))
sketch11.addConstraint(Sketcher.Constraint("DistanceX", 7, 1, 7, 3, 0.322402))
pocket10 = body.newObject("PartDesign::Pocket", "Pocket009")
pocket10.Profile = sketch11
pocket10.Type = "UpToFirst"

sketch12 = body.newObject("Sketcher::SketchObject", "Sketch011")
sketch12.AttachmentSupport = (doc.getObject("XY_Plane"), [""])
sketch12.MapMode = "FlatFace"
sketch12.addGeometry(Part.LineSegment(V(-80, 58.5, 0), V(-78, 58.5, 0)), False)
sketch12.addGeometry(Part.ArcOfCircle(Part.Circle(V(-78, 59.5, 0), V(0, 0, 1), 1), math.radians(-90), math.radians(0)), False)
sketch12.addGeometry(Part.LineSegment(V(-77, 59.5, 0), V(-77, 62.5, 0)), False)
sketch12.addGeometry(Part.ArcOfCircle(Part.Circle(V(-76, 62.5, 0), V(0, 0, 1), 1), math.radians(0), math.radians(180)), False)
sketch12.addGeometry(Part.LineSegment(V(-75, 62.5, 0), V(-75, 56.5, 0)), False)
sketch12.addGeometry(Part.ArcOfCircle(Part.Circle(V(-76, 56.5, 0), V(0, 0, 1), 1), math.radians(-90), math.radians(0)), False)
sketch12.addGeometry(Part.LineSegment(V(-76, 55.5, 0), V(-80, 55.5, 0)), False)
sketch12.addGeometry(Part.LineSegment(V(-80, 55.5, 0), V(-80, 58.5, 0)), False)
sketch12.addConstraint(Sketcher.Constraint("Tangent", 0, 2, 1, 1))
sketch12.addConstraint(Sketcher.Constraint("Tangent", 1, 2, 2, 1))
sketch12.addConstraint(Sketcher.Constraint("Tangent", 2, 2, 3, 2))
sketch12.addConstraint(Sketcher.Constraint("Tangent", 3, 1, 4, 1))
sketch12.addConstraint(Sketcher.Constraint("Tangent", 4, 2, 5, 2))
sketch12.addConstraint(Sketcher.Constraint("Tangent", 5, 1, 6, 1))
sketch12.addConstraint(Sketcher.Constraint("Coincident", 6, 2, 7, 1))
sketch12.addConstraint(Sketcher.Constraint("Coincident", 7, 2, 0, 1))
sketch12.addConstraint(Sketcher.Constraint("Horizontal", 0))
sketch12.addConstraint(Sketcher.Constraint("Vertical", 2))
sketch12.addConstraint(Sketcher.Constraint("Vertical", 4))
sketch12.addConstraint(Sketcher.Constraint("Horizontal", 6))
sketch12.addConstraint(Sketcher.Constraint("Vertical", 7))
sketch12.addConstraint(Sketcher.Constraint("Equal", 1, 3))
sketch12.addConstraint(Sketcher.Constraint("Equal", 3, 5))
sketch12.addConstraint(Sketcher.Constraint("Equal", 2, 7))
sketch12.addConstraint(Sketcher.Constraint("Radius", 1, 1.0))
sketch12.addConstraint(Sketcher.Constraint("DistanceX", 0, 1, 0, 2, 2.0))
sketch12.addConstraint(Sketcher.Constraint("DistanceY", 2, 1, 2, 2, 3.0))
sketch12.addConstraint(Sketcher.Constraint("DistanceX", 1, 3, -1, 1, 78.0))
sketch12.addConstraint(Sketcher.Constraint("DistanceY", -1, 1, 1, 3, 59.5))
pocket11 = body.newObject("PartDesign::Pocket", "Pocket010")
pocket11.Profile = sketch12
pocket11.Type = "UpToFirst"
pocket11.Reversed = True

sketch13 = body.newObject("Sketcher::SketchObject", "Sketch012")
sketch13.AttachmentSupport = (doc.getObject("XY_Plane"), [""])
sketch13.MapMode = "FlatFace"
sketch13.addGeometry(Part.LineSegment(V(-17.4, 62.5, 0), V(-17.4, 59.5, 0)), False)
sketch13.addGeometry(Part.ArcOfCircle(Part.Circle(V(-16.4, 59.5, 0), V(0, 0, 1), 1), math.radians(-180), math.radians(-90)), False)
sketch13.addGeometry(Part.LineSegment(V(-16.4, 58.5, 0), V(-14.4, 58.5, 0)), False)
sketch13.addGeometry(Part.LineSegment(V(-14.4, 58.5, 0), V(-14.4, 55.5, 0)), False)
sketch13.addGeometry(Part.LineSegment(V(-14.4, 55.5, 0), V(-18.4, 55.5, 0)), False)
sketch13.addGeometry(Part.ArcOfCircle(Part.Circle(V(-18.4, 56.5, 0), V(0, 0, 1), 1), math.radians(-180), math.radians(-90)), False)
sketch13.addGeometry(Part.LineSegment(V(-19.4, 56.5, 0), V(-19.4, 62.5, 0)), False)
sketch13.addGeometry(Part.ArcOfCircle(Part.Circle(V(-18.4, 62.5, 0), V(0, 0, 1), 1), math.radians(0), math.radians(180)), False)
sketch13.addConstraint(Sketcher.Constraint("Tangent", 0, 2, 1, 1))
sketch13.addConstraint(Sketcher.Constraint("Tangent", 1, 2, 2, 1))
sketch13.addConstraint(Sketcher.Constraint("Coincident", 2, 2, 3, 1))
sketch13.addConstraint(Sketcher.Constraint("Coincident", 3, 2, 4, 1))
sketch13.addConstraint(Sketcher.Constraint("Tangent", 4, 2, 5, 2))
sketch13.addConstraint(Sketcher.Constraint("Tangent", 5, 1, 6, 1))
sketch13.addConstraint(Sketcher.Constraint("Tangent", 6, 2, 7, 2))
sketch13.addConstraint(Sketcher.Constraint("Tangent", 7, 1, 0, 1))
sketch13.addConstraint(Sketcher.Constraint("Vertical", 0))
sketch13.addConstraint(Sketcher.Constraint("Horizontal", 2))
sketch13.addConstraint(Sketcher.Constraint("Vertical", 3))
sketch13.addConstraint(Sketcher.Constraint("Horizontal", 4))
sketch13.addConstraint(Sketcher.Constraint("Vertical", 6))
sketch13.addConstraint(Sketcher.Constraint("Equal", 1, 5))
sketch13.addConstraint(Sketcher.Constraint("Equal", 5, 7))
sketch13.addConstraint(Sketcher.Constraint("Equal", 0, 3))
sketch13.addConstraint(Sketcher.Constraint("Radius", 1, 1.0))
sketch13.addConstraint(Sketcher.Constraint("DistanceX", 2, 1, 2, 2, 2.0))
sketch13.addConstraint(Sketcher.Constraint("DistanceY", 0, 2, 0, 1, 3.0))
sketch13.addConstraint(Sketcher.Constraint("DistanceY", -1, 1, 1, 3, 59.5))
sketch13.addConstraint(Sketcher.Constraint("DistanceX", 1, 3, -1, 1, 16.36))
pocket12 = body.newObject("PartDesign::Pocket", "Pocket011")
pocket12.Profile = sketch13
pocket12.Type = "UpToFirst"
pocket12.Reversed = True

sketch14 = body.newObject("Sketcher::SketchObject", "Sketch013")
sketch14.AttachmentSupport = (doc.getObject("XY_Plane"), [""])
sketch14.MapMode = "FlatFace"
sketch14.addGeometry(Part.LineSegment(V(77, 62.5, 0), V(77, 59.5, 0)), False)
sketch14.addGeometry(Part.ArcOfCircle(Part.Circle(V(78, 59.5, 0), V(0, 0, 1), 1), math.radians(-180), math.radians(-90)), False)
sketch14.addGeometry(Part.LineSegment(V(78, 58.5, 0), V(80, 58.5, 0)), False)
sketch14.addGeometry(Part.LineSegment(V(80, 58.5, 0), V(80, 55.5, 0)), False)
sketch14.addGeometry(Part.LineSegment(V(80, 55.5, 0), V(76, 55.5, 0)), False)
sketch14.addGeometry(Part.ArcOfCircle(Part.Circle(V(76, 56.5, 0), V(0, 0, 1), 1), math.radians(-180), math.radians(-90)), False)
sketch14.addGeometry(Part.LineSegment(V(75, 56.5, 0), V(75, 62.5, 0)), False)
sketch14.addGeometry(Part.ArcOfCircle(Part.Circle(V(76, 62.5, 0), V(0, 0, 1), 1), math.radians(0), math.radians(180)), False)
sketch14.addConstraint(Sketcher.Constraint("Tangent", 0, 2, 1, 1))
sketch14.addConstraint(Sketcher.Constraint("Tangent", 1, 2, 2, 1))
sketch14.addConstraint(Sketcher.Constraint("Coincident", 2, 2, 3, 1))
sketch14.addConstraint(Sketcher.Constraint("Coincident", 3, 2, 4, 1))
sketch14.addConstraint(Sketcher.Constraint("Tangent", 4, 2, 5, 2))
sketch14.addConstraint(Sketcher.Constraint("Tangent", 5, 1, 6, 1))
sketch14.addConstraint(Sketcher.Constraint("Tangent", 6, 2, 7, 2))
sketch14.addConstraint(Sketcher.Constraint("Tangent", 7, 1, 0, 1))
sketch14.addConstraint(Sketcher.Constraint("Vertical", 0))
sketch14.addConstraint(Sketcher.Constraint("Horizontal", 2))
sketch14.addConstraint(Sketcher.Constraint("Vertical", 3))
sketch14.addConstraint(Sketcher.Constraint("Horizontal", 4))
sketch14.addConstraint(Sketcher.Constraint("Vertical", 6))
sketch14.addConstraint(Sketcher.Constraint("Equal", 1, 5))
sketch14.addConstraint(Sketcher.Constraint("Equal", 5, 7))
sketch14.addConstraint(Sketcher.Constraint("Equal", 0, 3))
sketch14.addConstraint(Sketcher.Constraint("Radius", 1, 1.0))
sketch14.addConstraint(Sketcher.Constraint("DistanceX", 2, 1, 2, 2, 2.0))
sketch14.addConstraint(Sketcher.Constraint("DistanceY", 0, 2, 0, 1, 3.0))
sketch14.addConstraint(Sketcher.Constraint("DistanceX", -1, 1, 1, 3, 78.0))
sketch14.addConstraint(Sketcher.Constraint("DistanceY", -1, 1, 1, 3, 59.5))
pocket13 = body.newObject("PartDesign::Pocket", "Pocket012")
pocket13.Profile = sketch14
pocket13.Type = "UpToFirst"
pocket13.Reversed = True

sketch15 = body.newObject("Sketcher::SketchObject", "Sketch014")
sketch15.AttachmentSupport = (doc.getObject("XY_Plane"), [""])
sketch15.MapMode = "FlatFace"
sketch15.addGeometry(Part.LineSegment(V(17.4, 59.5, 0), V(17.4, 62.5, 0)), False)
sketch15.addGeometry(Part.ArcOfCircle(Part.Circle(V(18.4, 62.5, 0), V(0, 0, 1), 1), math.radians(0), math.radians(180)), False)
sketch15.addGeometry(Part.LineSegment(V(19.4, 62.5, 0), V(19.4, 56.5, 0)), False)
sketch15.addGeometry(Part.ArcOfCircle(Part.Circle(V(18.4, 56.5, 0), V(0, 0, 1), 1), math.radians(-90), math.radians(0)), False)
sketch15.addGeometry(Part.LineSegment(V(18.4, 55.5, 0), V(14.4, 55.5, 0)), False)
sketch15.addGeometry(Part.LineSegment(V(14.4, 55.5, 0), V(14.4, 58.5, 0)), False)
sketch15.addGeometry(Part.LineSegment(V(14.4, 58.5, 0), V(16.4, 58.5, 0)), False)
sketch15.addGeometry(Part.ArcOfCircle(Part.Circle(V(16.4, 59.5, 0), V(0, 0, 1), 1), math.radians(-90), math.radians(0)), False)
sketch15.addConstraint(Sketcher.Constraint("Tangent", 0, 2, 1, 2))
sketch15.addConstraint(Sketcher.Constraint("Tangent", 1, 1, 2, 1))
sketch15.addConstraint(Sketcher.Constraint("Tangent", 2, 2, 3, 2))
sketch15.addConstraint(Sketcher.Constraint("Tangent", 3, 1, 4, 1))
sketch15.addConstraint(Sketcher.Constraint("Coincident", 4, 2, 5, 1))
sketch15.addConstraint(Sketcher.Constraint("Coincident", 5, 2, 6, 1))
sketch15.addConstraint(Sketcher.Constraint("Tangent", 6, 2, 7, 1))
sketch15.addConstraint(Sketcher.Constraint("Tangent", 7, 2, 0, 1))
sketch15.addConstraint(Sketcher.Constraint("Vertical", 0))
sketch15.addConstraint(Sketcher.Constraint("Vertical", 2))
sketch15.addConstraint(Sketcher.Constraint("Horizontal", 4))
sketch15.addConstraint(Sketcher.Constraint("Vertical", 5))
sketch15.addConstraint(Sketcher.Constraint("Horizontal", 6))
sketch15.addConstraint(Sketcher.Constraint("Equal", 1, 3))
sketch15.addConstraint(Sketcher.Constraint("Equal", 3, 7))
sketch15.addConstraint(Sketcher.Constraint("Equal", 0, 5))
sketch15.addConstraint(Sketcher.Constraint("Radius", 1, 1.0))
sketch15.addConstraint(Sketcher.Constraint("DistanceX", 4, 2, 4, 1, 4.0))
sketch15.addConstraint(Sketcher.Constraint("DistanceY", 0, 1, 0, 2, 3.0))
sketch15.addConstraint(Sketcher.Constraint("DistanceY", -1, 1, 1, 3, 62.5))
sketch15.addConstraint(Sketcher.Constraint("DistanceX", -1, 1, 1, 3, 18.36))
pocket14 = body.newObject("PartDesign::Pocket", "Pocket013")
pocket14.Profile = sketch15
pocket14.Type = "UpToFirst"
pocket14.Reversed = True

doc.recompute()
